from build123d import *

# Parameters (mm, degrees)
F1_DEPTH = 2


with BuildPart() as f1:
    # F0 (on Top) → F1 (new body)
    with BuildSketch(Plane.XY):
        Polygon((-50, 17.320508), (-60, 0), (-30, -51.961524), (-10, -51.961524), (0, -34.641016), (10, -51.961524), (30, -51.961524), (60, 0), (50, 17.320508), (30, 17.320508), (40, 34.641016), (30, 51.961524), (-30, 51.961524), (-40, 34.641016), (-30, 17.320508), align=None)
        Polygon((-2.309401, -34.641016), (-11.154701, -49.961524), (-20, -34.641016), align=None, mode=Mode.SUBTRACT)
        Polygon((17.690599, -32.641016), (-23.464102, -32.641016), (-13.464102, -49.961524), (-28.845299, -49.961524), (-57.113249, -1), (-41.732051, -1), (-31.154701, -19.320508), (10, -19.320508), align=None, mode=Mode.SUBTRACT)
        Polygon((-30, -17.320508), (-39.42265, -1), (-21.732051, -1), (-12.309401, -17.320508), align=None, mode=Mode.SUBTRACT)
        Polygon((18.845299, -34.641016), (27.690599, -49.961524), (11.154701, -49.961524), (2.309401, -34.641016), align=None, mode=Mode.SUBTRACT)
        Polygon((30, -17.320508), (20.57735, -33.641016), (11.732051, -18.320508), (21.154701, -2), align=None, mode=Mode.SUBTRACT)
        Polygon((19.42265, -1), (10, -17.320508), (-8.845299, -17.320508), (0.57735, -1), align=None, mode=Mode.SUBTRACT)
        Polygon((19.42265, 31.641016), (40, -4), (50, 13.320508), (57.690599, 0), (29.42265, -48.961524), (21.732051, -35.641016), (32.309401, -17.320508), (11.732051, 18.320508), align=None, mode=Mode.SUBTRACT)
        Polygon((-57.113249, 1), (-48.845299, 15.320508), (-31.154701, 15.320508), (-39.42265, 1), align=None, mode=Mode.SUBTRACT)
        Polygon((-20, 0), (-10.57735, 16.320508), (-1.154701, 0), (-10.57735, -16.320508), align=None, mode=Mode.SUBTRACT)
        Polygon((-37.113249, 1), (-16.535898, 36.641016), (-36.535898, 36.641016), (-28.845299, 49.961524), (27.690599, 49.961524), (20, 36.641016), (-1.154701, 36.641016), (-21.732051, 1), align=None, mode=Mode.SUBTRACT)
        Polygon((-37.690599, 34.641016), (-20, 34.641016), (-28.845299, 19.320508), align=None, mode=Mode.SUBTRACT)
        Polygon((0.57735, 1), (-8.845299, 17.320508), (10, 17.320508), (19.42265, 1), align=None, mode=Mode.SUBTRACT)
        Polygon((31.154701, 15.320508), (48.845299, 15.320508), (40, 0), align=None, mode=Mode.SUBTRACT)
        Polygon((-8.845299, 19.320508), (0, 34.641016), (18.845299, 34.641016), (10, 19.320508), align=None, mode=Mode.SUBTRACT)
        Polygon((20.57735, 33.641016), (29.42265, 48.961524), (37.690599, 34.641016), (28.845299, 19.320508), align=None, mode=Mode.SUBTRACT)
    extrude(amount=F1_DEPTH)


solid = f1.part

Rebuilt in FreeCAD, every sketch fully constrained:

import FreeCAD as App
import Part
import Sketcher
from FreeCAD import Vector
Q = App.Units.Quantity

doc = App.newDocument("Part")
body = doc.addObject("PartDesign::Body", "Body")

# Sketch on XY plane
sketch1 = body.newObject("Sketcher::SketchObject", "Sketch")
sketch1.AttachmentSupport = (doc.getObject("XY_Plane"), [""])
sketch1.MapMode = "FlatFace"
sketch1.addGeometry(Part.LineSegment(Vector(-50, 17.320508, 0), Vector(-60, 0, 0)), False)
sketch1.addGeometry(Part.LineSegment(Vector(-60, 0, 0), Vector(-30, -51.961524, 0)), False)
sketch1.addGeometry(Part.LineSegment(Vector(-30, -51.961524, 0), Vector(-10, -51.961524, 0)), False)
sketch1.addGeometry(Part.LineSegment(Vector(-10, -51.961524, 0), Vector(0, -34.641016, 0)), False)
sketch1.addGeometry(Part.LineSegment(Vector(0, -34.641016, 0), Vector(10, -51.961524, 0)), False)
sketch1.addGeometry(Part.LineSegment(Vector(10, -51.961524, 0), Vector(30, -51.961524, 0)), False)
sketch1.addGeometry(Part.LineSegment(Vector(30, -51.961524, 0), Vector(60, 0, 0)), False)
sketch1.addGeometry(Part.LineSegment(Vector(60, 0, 0), Vector(50, 17.320508, 0)), False)
sketch1.addGeometry(Part.LineSegment(Vector(50, 17.320508, 0), Vector(30, 17.320508, 0)), False)
sketch1.addGeometry(Part.LineSegment(Vector(30, 17.320508, 0), Vector(40, 34.641016, 0)), False)
sketch1.addGeometry(Part.LineSegment(Vector(40, 34.641016, 0), Vector(30, 51.961524, 0)), False)
sketch1.addGeometry(Part.LineSegment(Vector(30, 51.961524, 0), Vector(-30, 51.961524, 0)), False)
sketch1.addGeometry(Part.LineSegment(Vector(-30, 51.961524, 0), Vector(-40, 34.641016, 0)), False)
sketch1.addGeometry(Part.LineSegment(Vector(-40, 34.641016, 0), Vector(-30, 17.320508, 0)), False)
sketch1.addGeometry(Part.LineSegment(Vector(-30, 17.320508, 0), Vector(-50, 17.320508, 0)), False)
sketch1.addGeometry(Part.LineSegment(Vector(-20, -34.641016, 0), Vector(-2.309401, -34.641016, 0)), False)
sketch1.addGeometry(Part.LineSegment(Vector(-2.309401, -34.641016, 0), Vector(-11.154701, -49.961524, 0)), False)
sketch1.addGeometry(Part.LineSegment(Vector(-11.154701, -49.961524, 0), Vector(-20, -34.641016, 0)), False)
sketch1.addGeometry(Part.LineSegment(Vector(10, -19.320508, 0), Vector(17.690599, -32.641016, 0)), False)
sketch1.addGeometry(Part.LineSegment(Vector(17.690599, -32.641016, 0), Vector(-23.464102, -32.641016, 0)), False)
sketch1.addGeometry(Part.LineSegment(Vector(-23.464102, -32.641016, 0), Vector(-13.464102, -49.961524, 0)), False)
sketch1.addGeometry(Part.LineSegment(Vector(-13.464102, -49.961524, 0), Vector(-28.845299, -49.961524, 0)), False)
sketch1.addGeometry(Part.LineSegment(Vector(-28.845299, -49.961524, 0), Vector(-57.113249, -1, 0)), False)
sketch1.addGeometry(Part.LineSegment(Vector(-57.113249, -1, 0), Vector(-41.732051, -1, 0)), False)
sketch1.addGeometry(Part.LineSegment(Vector(-41.732051, -1, 0), Vector(-31.154701, -19.320508, 0)), False)
sketch1.addGeometry(Part.LineSegment(Vector(-31.154701, -19.320508, 0), Vector(10, -19.320508, 0)), False)
sketch1.addGeometry(Part.LineSegment(Vector(-12.309401, -17.320508, 0), Vector(-30, -17.320508, 0)), False)
sketch1.addGeometry(Part.LineSegment(Vector(-30, -17.320508, 0), Vector(-39.42265, -1, 0)), False)
sketch1.addGeometry(Part.LineSegment(Vector(-39.42265, -1, 0), Vector(-21.732051, -1, 0)), False)
sketch1.addGeometry(Part.LineSegment(Vector(-21.732051, -1, 0), Vector(-12.309401, -17.320508, 0)), False)
sketch1.addGeometry(Part.LineSegment(Vector(2.309401, -34.641016, 0), Vector(18.845299, -34.641016, 0)), False)
sketch1.addGeometry(Part.LineSegment(Vector(18.845299, -34.641016, 0), Vector(27.690599, -49.961524, 0)), False)
sketch1.addGeometry(Part.LineSegment(Vector(27.690599, -49.961524, 0), Vector(11.154701, -49.961524, 0)), False)
sketch1.addGeometry(Part.LineSegment(Vector(11.154701, -49.961524, 0), Vector(2.309401, -34.641016, 0)), False)
sketch1.addGeometry(Part.LineSegment(Vector(21.154701, -2, 0), Vector(30, -17.320508, 0)), False)
sketch1.addGeometry(Part.LineSegment(Vector(30, -17.320508, 0), Vector(20.57735, -33.641016, 0)), False)
sketch1.addGeometry(Part.LineSegment(Vector(20.57735, -33.641016, 0), Vector(11.732051, -18.320508, 0)), False)
sketch1.addGeometry(Part.LineSegment(Vector(11.732051, -18.320508, 0), Vector(21.154701, -2, 0)), False)
sketch1.addGeometry(Part.LineSegment(Vector(0.57735, -1, 0), Vector(19.42265, -1, 0)), False)
sketch1.addGeometry(Part.LineSegment(Vector(19.42265, -1, 0), Vector(10, -17.320508, 0)), False)
sketch1.addGeometry(Part.LineSegment(Vector(10, -17.320508, 0), Vector(-8.845299, -17.320508, 0)), False)
sketch1.addGeometry(Part.LineSegment(Vector(-8.845299, -17.320508, 0), Vector(0.57735, -1, 0)), False)
sketch1.addGeometry(Part.LineSegment(Vector(11.732051, 18.320508, 0), Vector(19.42265, 31.641016, 0)), False)
sketch1.addGeometry(Part.LineSegment(Vector(19.42265, 31.641016, 0), Vector(40, -4, 0)), False)
sketch1.addGeometry(Part.LineSegment(Vector(40, -4, 0), Vector(50, 13.320508, 0)), False)
sketch1.addGeometry(Part.LineSegment(Vector(50, 13.320508, 0), Vector(57.690599, 0, 0)), False)
sketch1.addGeometry(Part.LineSegment(Vector(57.690599, 0, 0), Vector(29.42265, -48.961524, 0)), False)
sketch1.addGeometry(Part.LineSegment(Vector(29.42265, -48.961524, 0), Vector(21.732051, -35.641016, 0)), False)
sketch1.addGeometry(Part.LineSegment(Vector(21.732051, -35.641016, 0), Vector(32.309401, -17.320508, 0)), False)
sketch1.addGeometry(Part.LineSegment(Vector(32.309401, -17.320508, 0), Vector(11.732051, 18.320508, 0)), False)
sketch1.addGeometry(Part.LineSegment(Vector(-39.42265, 1, 0), Vector(-57.113249, 1, 0)), False)
sketch1.addGeometry(Part.LineSegment(Vector(-57.113249, 1, 0), Vector(-48.845299, 15.320508, 0)), False)
sketch1.addGeometry(Part.LineSegment(Vector(-48.845299, 15.320508, 0), Vector(-31.154701, 15.320508, 0)), False)
sketch1.addGeometry(Part.LineSegment(Vector(-31.154701, 15.320508, 0), Vector(-39.42265, 1, 0)), False)
sketch1.addGeometry(Part.LineSegment(Vector(-10.57735, -16.320508, 0), Vector(-20, 0, 0)), False)
sketch1.addGeometry(Part.LineSegment(Vector(-20, 0, 0), Vector(-10.57735, 16.320508, 0)), False)
sketch1.addGeometry(Part.LineSegment(Vector(-10.57735, 16.320508, 0), Vector(-1.154701, 0, 0)), False)
sketch1.addGeometry(Part.LineSegment(Vector(-1.154701, 0, 0), Vector(-10.57735, -16.320508, 0)), False)
sketch1.addGeometry(Part.LineSegment(Vector(-28.845299, 19.320508, 0), Vector(-37.690599, 34.641016, 0)), False)
sketch1.addGeometry(Part.LineSegment(Vector(-37.690599, 34.641016, 0), Vector(-20, 34.641016, 0)), False)
sketch1.addGeometry(Part.LineSegment(Vector(-20, 34.641016, 0), Vector(-28.845299, 19.320508, 0)), False)
sketch1.addGeometry(Part.LineSegment(Vector(-21.732051, 1, 0), Vector(-37.113249, 1, 0)), False)
sketch1.addGeometry(Part.LineSegment(Vector(-37.113249, 1, 0), Vector(-16.535898, 36.641016, 0)), False)
sketch1.addGeometry(Part.LineSegment(Vector(-16.535898, 36.641016, 0), Vector(-36.535898, 36.641016, 0)), False)
sketch1.addGeometry(Part.LineSegment(Vector(-36.535898, 36.641016, 0), Vector(-28.845299, 49.961524, 0)), False)
sketch1.addGeometry(Part.LineSegment(Vector(-28.845299, 49.961524, 0), Vector(27.690599, 49.961524, 0)), False)
sketch1.addGeometry(Part.LineSegment(Vector(27.690599, 49.961524, 0), Vector(20, 36.641016, 0)), False)
sketch1.addGeometry(Part.LineSegment(Vector(20, 36.641016, 0), Vector(-1.154701, 36.641016, 0)), False)
sketch1.addGeometry(Part.LineSegment(Vector(-1.154701, 36.641016, 0), Vector(-21.732051, 1, 0)), False)
sketch1.addGeometry(Part.LineSegment(Vector(19.42265, 1, 0), Vector(0.57735, 1, 0)), False)
sketch1.addGeometry(Part.LineSegment(Vector(0.57735, 1, 0), Vector(-8.845299, 17.320508, 0)), False)
sketch1.addGeometry(Part.LineSegment(Vector(-8.845299, 17.320508, 0), Vector(10, 17.320508, 0)), False)
sketch1.addGeometry(Part.LineSegment(Vector(10, 17.320508, 0), Vector(19.42265, 1, 0)), False)
sketch1.addGeometry(Part.LineSegment(Vector(40, 0, 0), Vector(31.154701, 15.320508, 0)), False)
sketch1.addGeometry(Part.LineSegment(Vector(31.154701, 15.320508, 0), Vector(48.845299, 15.320508, 0)), False)
sketch1.addGeometry(Part.LineSegment(Vector(48.845299, 15.320508, 0), Vector(40, 0, 0)), False)
sketch1.addGeometry(Part.LineSegment(Vector(10, 19.320508, 0), Vector(-8.845299, 19.320508, 0)), False)
sketch1.addGeometry(Part.LineSegment(Vector(-8.845299, 19.320508, 0), Vector(0, 34.641016, 0)), False)
sketch1.addGeometry(Part.LineSegment(Vector(0, 34.641016, 0), Vector(18.845299, 34.641016, 0)), False)
sketch1.addGeometry(Part.LineSegment(Vector(18.845299, 34.641016, 0), Vector(10, 19.320508, 0)), False)
sketch1.addGeometry(Part.LineSegment(Vector(28.845299, 19.320508, 0), Vector(20.57735, 33.641016, 0)), False)
sketch1.addGeometry(Part.LineSegment(Vector(20.57735, 33.641016, 0), Vector(29.42265, 48.961524, 0)), False)
sketch1.addGeometry(Part.LineSegment(Vector(29.42265, 48.961524, 0), Vector(37.690599, 34.641016, 0)), False)
sketch1.addGeometry(Part.LineSegment(Vector(37.690599, 34.641016, 0), Vector(28.845299, 19.320508, 0)), False)
sketch1.addConstraint(Sketcher.Constraint("Coincident", 0, 2, 1, 1))
sketch1.addConstraint(Sketcher.Constraint("Coincident", 1, 2, 2, 1))
sketch1.addConstraint(Sketcher.Constraint("Coincident", 2, 2, 3, 1))
sketch1.addConstraint(Sketcher.Constraint("Coincident", 3, 2, 4, 1))
sketch1.addConstraint(Sketcher.Constraint("Coincident", 4, 2, 5, 1))
sketch1.addConstraint(Sketcher.Constraint("Coincident", 5, 2, 6, 1))
sketch1.addConstraint(Sketcher.Constraint("Coincident", 6, 2, 7, 1))
sketch1.addConstraint(Sketcher.Constraint("Coincident", 7, 2, 8, 1))
sketch1.addConstraint(Sketcher.Constraint("Coincident", 8, 2, 9, 1))
sketch1.addConstraint(Sketcher.Constraint("Coincident", 9, 2, 10, 1))
sketch1.addConstraint(Sketcher.Constraint("Coincident", 10, 2, 11, 1))
sketch1.addConstraint(Sketcher.Constraint("Coincident", 11, 2, 12, 1))
sketch1.addConstraint(Sketcher.Constraint("Coincident", 12, 2, 13, 1))
sketch1.addConstraint(Sketcher.Constraint("Coincident", 13, 2, 14, 1))
sketch1.addConstraint(Sketcher.Constraint("Coincident", 14, 2, 0, 1))
sketch1.addConstraint(Sketcher.Constraint("Coincident", 15, 2, 16, 1))
sketch1.addConstraint(Sketcher.Constraint("Coincident", 16, 2, 17, 1))
sketch1.addConstraint(Sketcher.Constraint("Coincident", 17, 2, 15, 1))
sketch1.addConstraint(Sketcher.Constraint("Coincident", 18, 2, 19, 1))
sketch1.addConstraint(Sketcher.Constraint("Coincident", 19, 2, 20, 1))
sketch1.addConstraint(Sketcher.Constraint("Coincident", 20, 2, 21, 1))
sketch1.addConstraint(Sketcher.Constraint("Coincident", 21, 2, 22, 1))
sketch1.addConstraint(Sketcher.Constraint("Coincident", 22, 2, 23, 1))
sketch1.addConstraint(Sketcher.Constraint("Coincident", 23, 2, 24, 1))
sketch1.addConstraint(Sketcher.Constraint("Coincident", 24, 2, 25, 1))
sketch1.addConstraint(Sketcher.Constraint("Coincident", 25, 2, 18, 1))
sketch1.addConstraint(Sketcher.Constraint("Coincident", 26, 2, 27, 1))
sketch1.addConstraint(Sketcher.Constraint("Coincident", 27, 2, 28, 1))
sketch1.addConstraint(Sketcher.Constraint("Coincident", 28, 2, 29, 1))
sketch1.addConstraint(Sketcher.Constraint("Coincident", 29, 2, 26, 1))
sketch1.addConstraint(Sketcher.Constraint("Coincident", 30, 2, 31, 1))
sketch1.addConstraint(Sketcher.Constraint("Coincident", 31, 2, 32, 1))
sketch1.addConstraint(Sketcher.Constraint("Coincident", 32, 2, 33, 1))
sketch1.addConstraint(Sketcher.Constraint("Coincident", 33, 2, 30, 1))
sketch1.addConstraint(Sketcher.Constraint("Coincident", 34, 2, 35, 1))
sketch1.addConstraint(Sketcher.Constraint("Coincident", 35, 2, 36, 1))
sketch1.addConstraint(Sketcher.Constraint("Coincident", 36, 2, 37, 1))
sketch1.addConstraint(Sketcher.Constraint("Coincident", 37, 2, 34, 1))
sketch1.addConstraint(Sketcher.Constraint("Coincident", 38, 2, 39, 1))
sketch1.addConstraint(Sketcher.Constraint("Coincident", 39, 2, 40, 1))
sketch1.addConstraint(Sketcher.Constraint("Coincident", 40, 2, 41, 1))
sketch1.addConstraint(Sketcher.Constraint("Coincident", 41, 2, 38, 1))
sketch1.addConstraint(Sketcher.Constraint("Coincident", 42, 2, 43, 1))
sketch1.addConstraint(Sketcher.Constraint("Coincident", 43, 2, 44, 1))
sketch1.addConstraint(Sketcher.Constraint("Coincident", 44, 2, 45, 1))
sketch1.addConstraint(Sketcher.Constraint("Coincident", 45, 2, 46, 1))
sketch1.addConstraint(Sketcher.Constraint("Coincident", 46, 2, 47, 1))
sketch1.addConstraint(Sketcher.Constraint("Coincident", 47, 2, 48, 1))
sketch1.addConstraint(Sketcher.Constraint("Coincident", 48, 2, 49, 1))
sketch1.addConstraint(Sketcher.Constraint("Coincident", 49, 2, 42, 1))
sketch1.addConstraint(Sketcher.Constraint("Coincident", 50, 2, 51, 1))
sketch1.addConstraint(Sketcher.Constraint("Coincident", 51, 2, 52, 1))
sketch1.addConstraint(Sketcher.Constraint("Coincident", 52, 2, 53, 1))
sketch1.addConstraint(Sketcher.Constraint("Coincident", 53, 2, 50, 1))
sketch1.addConstraint(Sketcher.Constraint("Coincident", 54, 2, 55, 1))
sketch1.addConstraint(Sketcher.Constraint("Coincident", 55, 2, 56, 1))
sketch1.addConstraint(Sketcher.Constraint("Coincident", 56, 2, 57, 1))
sketch1.addConstraint(Sketcher.Constraint("Coincident", 57, 2, 54, 1))
sketch1.addConstraint(Sketcher.Constraint("Coincident", 58, 2, 59, 1))
sketch1.addConstraint(Sketcher.Constraint("Coincident", 59, 2, 60, 1))
sketch1.addConstraint(Sketcher.Constraint("Coincident", 60, 2, 58, 1))
sketch1.addConstraint(Sketcher.Constraint("Coincident", 61, 2, 62, 1))
sketch1.addConstraint(Sketcher.Constraint("Coincident", 62, 2, 63, 1))
sketch1.addConstraint(Sketcher.Constraint("Coincident", 63, 2, 64, 1))
sketch1.addConstraint(Sketcher.Constraint("Coincident", 64, 2, 65, 1))
sketch1.addConstraint(Sketcher.Constraint("Coincident", 65, 2, 66, 1))
sketch1.addConstraint(Sketcher.Constraint("Coincident", 66, 2, 67, 1))
sketch1.addConstraint(Sketcher.Constraint("Coincident", 67, 2, 68, 1))
sketch1.addConstraint(Sketcher.Constraint("Coincident", 68, 2, 61, 1))
sketch1.addConstraint(Sketcher.Constraint("Coincident", 69, 2, 70, 1))
sketch1.addConstraint(Sketcher.Constraint("Coincident", 70, 2, 71, 1))
sketch1.addConstraint(Sketcher.Constraint("Coincident", 71, 2, 72, 1))
sketch1.addConstraint(Sketcher.Constraint("Coincident", 72, 2, 69, 1))
sketch1.addConstraint(Sketcher.Constraint("Coincident", 73, 2, 74, 1))
sketch1.addConstraint(Sketcher.Constraint("Coincident", 74, 2, 75, 1))
sketch1.addConstraint(Sketcher.Constraint("Coincident", 75, 2, 73, 1))
sketch1.addConstraint(Sketcher.Constraint("Coincident", 76, 2, 77, 1))
sketch1.addConstraint(Sketcher.Constraint("Coincident", 77, 2, 78, 1))
sketch1.addConstraint(Sketcher.Constraint("Coincident", 78, 2, 79, 1))
sketch1.addConstraint(Sketcher.Constraint("Coincident", 79, 2, 76, 1))
sketch1.addConstraint(Sketcher.Constraint("Coincident", 80, 2, 81, 1))
sketch1.addConstraint(Sketcher.Constraint("Coincident", 81, 2, 82, 1))
sketch1.addConstraint(Sketcher.Constraint("Coincident", 82, 2, 83, 1))
sketch1.addConstraint(Sketcher.Constraint("Coincident", 83, 2, 80, 1))
sketch1.addConstraint(Sketcher.Constraint("Horizontal", 2))
sketch1.addConstraint(Sketcher.Constraint("Horizontal", 5))
sketch1.addConstraint(Sketcher.Constraint("Horizontal", 8))
sketch1.addConstraint(Sketcher.Constraint("Horizontal", 11))
sketch1.addConstraint(Sketcher.Constraint("Horizontal", 14))
sketch1.addConstraint(Sketcher.Constraint("Horizontal", 15))
sketch1.addConstraint(Sketcher.Constraint("Horizontal", 19))
sketch1.addConstraint(Sketcher.Constraint("Horizontal", 21))
sketch1.addConstraint(Sketcher.Constraint("Horizontal", 23))
sketch1.addConstraint(Sketcher.Constraint("Horizontal", 25))
sketch1.addConstraint(Sketcher.Constraint("Horizontal", 26))
sketch1.addConstraint(Sketcher.Constraint("Horizontal", 28))
sketch1.addConstraint(Sketcher.Constraint("Horizontal", 30))
sketch1.addConstraint(Sketcher.Constraint("Horizontal", 32))
sketch1.addConstraint(Sketcher.Constraint("Horizontal", 38))
sketch1.addConstraint(Sketcher.Constraint("Horizontal", 40))
sketch1.addConstraint(Sketcher.Constraint("Horizontal", 50))
sketch1.addConstraint(Sketcher.Constraint("Horizontal", 52))
sketch1.addConstraint(Sketcher.Constraint("Horizontal", 59))
sketch1.addConstraint(Sketcher.Constraint("Horizontal", 61))
sketch1.addConstraint(Sketcher.Constraint("Horizontal", 63))
sketch1.addConstraint(Sketcher.Constraint("Horizontal", 65))
sketch1.addConstraint(Sketcher.Constraint("Horizontal", 67))
sketch1.addConstraint(Sketcher.Constraint("Horizontal", 69))
sketch1.addConstraint(Sketcher.Constraint("Horizontal", 71))
sketch1.addConstraint(Sketcher.Constraint("Horizontal", 74))
sketch1.addConstraint(Sketcher.Constraint("Horizontal", 76))
sketch1.addConstraint(Sketcher.Constraint("Horizontal", 78))
sketch1.addConstraint(Sketcher.Constraint("Symmetric", 0, 2, 6, 2, -1, 1))
sketch1.addConstraint(Sketcher.Constraint("Symmetric", 1, 2, 10, 2, -1, 1))
sketch1.addConstraint(Sketcher.Constraint("Symmetric", 5, 2, 11, 2, -1, 1))
sketch1.addConstraint(Sketcher.Constraint("Symmetric", 8, 2, 26, 2, -1, 1))
sketch1.addConstraint(Sketcher.Constraint("Symmetric", 13, 2, 34, 2, -1, 1))
sketch1.addConstraint(Sketcher.Constraint("Symmetric", 3, 2, 77, 2, -1, 1))
sketch1.addConstraint(Sketcher.Constraint("Symmetric", 9, 2, 12, 2, -2))
sketch1.addConstraint(Sketcher.Constraint("Symmetric", 8, 2, 13, 2, -2))
sketch1.addConstraint(Sketcher.Constraint("Symmetric", 16, 2, 32, 2, -2))
sketch1.addConstraint(Sketcher.Constraint("Symmetric", 15, 2, 33, 2, -2))
sketch1.addConstraint(Sketcher.Constraint("Symmetric", 52, 2, 73, 2, -2))
sketch1.addConstraint(Sketcher.Constraint("Symmetric", 58, 2, 82, 2, -2))
sketch1.addConstraint(Sketcher.Constraint("Symmetric", 60, 2, 83, 2, -2))
sketch1.addConstraint(Sketcher.Constraint("Symmetric", 36, 2, 49, 2, -1))
sketch1.addConstraint(Sketcher.Constraint("Symmetric", 22, 2, 50, 2, -1))
sketch1.addConstraint(Sketcher.Constraint("Symmetric", 27, 2, 53, 2, -1))
sketch1.addConstraint(Sketcher.Constraint("Symmetric", 55, 2, 57, 2, -1))
sketch1.addConstraint(Sketcher.Constraint("Symmetric", 17, 2, 59, 2, -1))
sketch1.addConstraint(Sketcher.Constraint("Symmetric", 21, 2, 64, 2, -1))
sketch1.addConstraint(Sketcher.Constraint("Symmetric", 31, 2, 65, 2, -1))
sketch1.addConstraint(Sketcher.Constraint("Symmetric", 28, 2, 68, 2, -1))
sketch1.addConstraint(Sketcher.Constraint("Symmetric", 41, 2, 69, 2, -1))
sketch1.addConstraint(Sketcher.Constraint("Symmetric", 40, 2, 70, 2, -1))
sketch1.addConstraint(Sketcher.Constraint("Symmetric", 30, 2, 78, 2, -1))
sketch1.addConstraint(Sketcher.Constraint("Symmetric", 25, 2, 79, 2, -1))
sketch1.addConstraint(Sketcher.Constraint("Symmetric", 35, 2, 80, 2, -1))
sketch1.addConstraint(Sketcher.Constraint("Symmetric", 46, 2, 81, 2, -1))
sketch1.addConstraint(Sketcher.Constraint("PointOnObject", 0, 2, -1))
sketch1.addConstraint(Sketcher.Constraint("PointOnObject", 3, 2, -2))
sketch1.addConstraint(Sketcher.Constraint("PointOnObject", 45, 2, -1))
sketch1.addConstraint(Sketcher.Constraint("PointOnObject", 54, 2, -1))
sketch1.addConstraint(Sketcher.Constraint("PointOnObject", 56, 2, -1))
sketch1.addConstraint(Sketcher.Constraint("PointOnObject", 75, 2, -1))
sketch1.addConstraint(Sketcher.Constraint("Parallel", 0, 3))
sketch1.addConstraint(Sketcher.Constraint("Parallel", 1, 4))
sketch1.addConstraint(Sketcher.Constraint("Parallel", 3, 6))
sketch1.addConstraint(Sketcher.Constraint("Parallel", 4, 7))
sketch1.addConstraint(Sketcher.Constraint("Parallel", 6, 9))
sketch1.addConstraint(Sketcher.Constraint("Parallel", 7, 10))
sketch1.addConstraint(Sketcher.Constraint("Parallel", 9, 12))
sketch1.addConstraint(Sketcher.Constraint("Parallel", 12, 16))
sketch1.addConstraint(Sketcher.Constraint("Parallel", 13, 17))
sketch1.addConstraint(Sketcher.Constraint("Parallel", 17, 18))
sketch1.addConstraint(Sketcher.Constraint("Parallel", 18, 20))
sketch1.addConstraint(Sketcher.Constraint("Parallel", 20, 22))
sketch1.addConstraint(Sketcher.Constraint("Parallel", 22, 24))
sketch1.addConstraint(Sketcher.Constraint("Parallel", 24, 27))
sketch1.addConstraint(Sketcher.Constraint("Parallel", 27, 29))
sketch1.addConstraint(Sketcher.Constraint("Parallel", 29, 31))
sketch1.addConstraint(Sketcher.Constraint("Parallel", 33, 34))
sketch1.addConstraint(Sketcher.Constraint("Parallel", 16, 35))
sketch1.addConstraint(Sketcher.Constraint("Parallel", 34, 36))
sketch1.addConstraint(Sketcher.Constraint("Parallel", 35, 37))
sketch1.addConstraint(Sketcher.Constraint("Parallel", 37, 39))
sketch1.addConstraint(Sketcher.Constraint("Parallel", 39, 41))
sketch1.addConstraint(Sketcher.Constraint("Parallel", 41, 42))
sketch1.addConstraint(Sketcher.Constraint("Parallel", 36, 43))
sketch1.addConstraint(Sketcher.Constraint("Parallel", 42, 44))
sketch1.addConstraint(Sketcher.Constraint("Parallel", 43, 45))
sketch1.addConstraint(Sketcher.Constraint("Parallel", 44, 46))
sketch1.addConstraint(Sketcher.Constraint("Parallel", 45, 47))
sketch1.addConstraint(Sketcher.Constraint("Parallel", 46, 48))
sketch1.addConstraint(Sketcher.Constraint("Parallel", 47, 49))
sketch1.addConstraint(Sketcher.Constraint("Parallel", 48, 51))
sketch1.addConstraint(Sketcher.Constraint("Parallel", 51, 53))
sketch1.addConstraint(Sketcher.Constraint("Parallel", 49, 54))
sketch1.addConstraint(Sketcher.Constraint("Parallel", 54, 56))
sketch1.addConstraint(Sketcher.Constraint("Parallel", 56, 58))
sketch1.addConstraint(Sketcher.Constraint("Parallel", 57, 60))
sketch1.addConstraint(Sketcher.Constraint("Parallel", 60, 62))
sketch1.addConstraint(Sketcher.Constraint("Parallel", 62, 64))
sketch1.addConstraint(Sketcher.Constraint("Parallel", 64, 66))
sketch1.addConstraint(Sketcher.Constraint("Parallel", 66, 68))
sketch1.addConstraint(Sketcher.Constraint("Parallel", 70, 72))
sketch1.addConstraint(Sketcher.Constraint("Parallel", 72, 73))
sketch1.addConstraint(Sketcher.Constraint("Parallel", 68, 75))
sketch1.addConstraint(Sketcher.Constraint("Parallel", 75, 77))
sketch1.addConstraint(Sketcher.Constraint("Parallel", 77, 79))
sketch1.addConstraint(Sketcher.Constraint("Parallel", 73, 80))
sketch1.addConstraint(Sketcher.Constraint("Parallel", 79, 81))
sketch1.addConstraint(Sketcher.Constraint("Parallel", 80, 82))
sketch1.addConstraint(Sketcher.Constraint("Horizontal", 28, 2, 38, 2))
sketch1.addConstraint(Sketcher.Constraint("Horizontal", 34, 2, 39, 2))
sketch1.addConstraint(Sketcher.Constraint("Horizontal", 40, 2, 48, 2))
sketch1.addConstraint(Sketcher.Constraint("Horizontal", 12, 2, 58, 2))
sketch1.addConstraint(Sketcher.Constraint("Horizontal", 63, 2, 66, 2))
sketch1.addConstraint(Sketcher.Constraint("Horizontal", 60, 2, 76, 2))
sketch1.addConstraint(Sketcher.Constraint("Vertical", 5, 2, 8, 2))
sketch1.addConstraint(Sketcher.Constraint("Vertical", 4, 2, 25, 2))
sketch1.addConstraint(Sketcher.Constraint("Vertical", 25, 2, 39, 2))
sketch1.addConstraint(Sketcher.Constraint("Vertical", 38, 2, 42, 2))
sketch1.addConstraint(Sketcher.Constraint("Vertical", 9, 2, 43, 2))
sketch1.addConstraint(Sketcher.Constraint("Vertical", 7, 2, 44, 2))
sketch1.addConstraint(Sketcher.Constraint("Vertical", 24, 2, 52, 2))
sketch1.addConstraint(Sketcher.Constraint("Vertical", 17, 2, 54, 2))
sketch1.addConstraint(Sketcher.Constraint("Vertical", 21, 2, 60, 2))
sketch1.addConstraint(Sketcher.Constraint("Vertical", 56, 2, 67, 2))
sketch1.addConstraint(Sketcher.Constraint("Vertical", 39, 2, 71, 2))
sketch1.addConstraint(Sketcher.Constraint("Vertical", 43, 2, 75, 2))
sketch1.addConstraint(Sketcher.Constraint("Vertical", 70, 2, 76, 2))
sketch1.addConstraint(Sketcher.Constraint("Equal", 5, 8))
sketch1.addConstraint(Sketcher.Constraint("Equal", 21, 23))
sketch1.addConstraint(Sketcher.Constraint("Equal", 15, 26))
sketch1.addConstraint(Sketcher.Constraint("Equal", 28, 50))
sketch1.addConstraint(Sketcher.Constraint("Equal", 23, 61))
sketch1.addConstraint(Sketcher.Constraint("Equal", 14, 63))
sketch1.addConstraint(Sketcher.Constraint("Equal", 13, 20))
sketch1.addConstraint(Sketcher.Constraint("Equal", 33, 34))
sketch1.addConstraint(Sketcher.Constraint("Equal", 29, 35))
sketch1.addConstraint(Sketcher.Constraint("Equal", 41, 54))
sketch1.addConstraint(Sketcher.Constraint("DistanceX", 2, 1, 2, 2, Q("20 mm")))
sketch1.addConstraint(Sketcher.Constraint("Angle", 0, Q("-120 deg")))
sketch1.addConstraint(Sketcher.Constraint("DistanceY", 22, 2, -1, 1, Q("1 mm")))
pad1 = body.newObject("PartDesign::Pad", "Pad")
pad1.Profile = sketch1
pad1.Length = 2

doc.recompute()
